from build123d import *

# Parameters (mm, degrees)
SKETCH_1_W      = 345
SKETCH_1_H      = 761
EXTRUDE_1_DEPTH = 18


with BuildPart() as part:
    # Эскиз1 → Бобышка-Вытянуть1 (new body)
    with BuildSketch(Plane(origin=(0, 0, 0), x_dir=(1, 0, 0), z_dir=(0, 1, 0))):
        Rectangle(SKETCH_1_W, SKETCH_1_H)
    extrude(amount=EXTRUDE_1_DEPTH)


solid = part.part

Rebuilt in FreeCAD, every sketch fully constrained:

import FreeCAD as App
import Part
import Sketcher

doc = App.newDocument("Part")
params = doc.addObject("Spreadsheet::Sheet", "Params")
for row, (alias, value) in enumerate([
    ("sketch1_width", "345 mm"),
    ("sketch1_height", "761 mm"),
    ("pad1_length", "18 mm"),
], start=1):
    params.set(f"A{row}", alias)
    params.set(f"B{row}", "=" + value)
    params.setAlias(f"B{row}", alias)

body = doc.addObject("PartDesign::Body", "Body")

# Sketch on XZ plane
sketch1 = doc.addObject("Sketcher::SketchObject", "Sketch")
body.addObject(sketch1)
sketch1.AttachmentSupport = (doc.XZ_Plane, [""])
sketch1.MapMode = "FlatFace"
sketch1.addGeometry([
    Part.LineSegment(App.Vector(-172.5, -380.5, 0), App.Vector(-172.5, 380.5, 0)),
    Part.LineSegment(App.Vector(-172.5, 380.5, 0), App.Vector(172.5, 380.5, 0)),
    Part.LineSegment(App.Vector(172.5, 380.5, 0), App.Vector(172.5, -380.5, 0)),
    Part.LineSegment(App.Vector(172.5, -380.5, 0), App.Vector(-172.5, -380.5, 0)),
], False)
sketch1.addConstraint([
    Sketcher.Constraint("Coincident", 0, 2, 1, 1),
    Sketcher.Constraint("Coincident", 1, 2, 2, 1),
    Sketcher.Constraint("Coincident", 2, 2, 3, 1),
    Sketcher.Constraint("Coincident", 3, 2, 0, 1),
    Sketcher.Constraint("Vertical", 0),
    Sketcher.Constraint("Horizontal", 1),
    Sketcher.Constraint("Vertical", 2),
    Sketcher.Constraint("Horizontal", 3),
    Sketcher.Constraint("Symmetric", 0, 2, 2, 2, -1, 1),
    Sketcher.Constraint("DistanceX", 1, 1, 1, 2, 345.0),
    Sketcher.Constraint("DistanceY", 0, 1, 0, 2, 761.0),
])
sketch1.setExpression("Constraints[9]", "Params.sketch1_width")
sketch1.setExpression("Constraints[10]", "Params.sketch1_height")
pad1 = doc.addObject("PartDesign::Pad", "Pad")
body.addObject(pad1)
pad1.Profile = sketch1
pad1.setExpression("Length", "Params.pad1_length")
pad1.Reversed = True

doc.recompute()
